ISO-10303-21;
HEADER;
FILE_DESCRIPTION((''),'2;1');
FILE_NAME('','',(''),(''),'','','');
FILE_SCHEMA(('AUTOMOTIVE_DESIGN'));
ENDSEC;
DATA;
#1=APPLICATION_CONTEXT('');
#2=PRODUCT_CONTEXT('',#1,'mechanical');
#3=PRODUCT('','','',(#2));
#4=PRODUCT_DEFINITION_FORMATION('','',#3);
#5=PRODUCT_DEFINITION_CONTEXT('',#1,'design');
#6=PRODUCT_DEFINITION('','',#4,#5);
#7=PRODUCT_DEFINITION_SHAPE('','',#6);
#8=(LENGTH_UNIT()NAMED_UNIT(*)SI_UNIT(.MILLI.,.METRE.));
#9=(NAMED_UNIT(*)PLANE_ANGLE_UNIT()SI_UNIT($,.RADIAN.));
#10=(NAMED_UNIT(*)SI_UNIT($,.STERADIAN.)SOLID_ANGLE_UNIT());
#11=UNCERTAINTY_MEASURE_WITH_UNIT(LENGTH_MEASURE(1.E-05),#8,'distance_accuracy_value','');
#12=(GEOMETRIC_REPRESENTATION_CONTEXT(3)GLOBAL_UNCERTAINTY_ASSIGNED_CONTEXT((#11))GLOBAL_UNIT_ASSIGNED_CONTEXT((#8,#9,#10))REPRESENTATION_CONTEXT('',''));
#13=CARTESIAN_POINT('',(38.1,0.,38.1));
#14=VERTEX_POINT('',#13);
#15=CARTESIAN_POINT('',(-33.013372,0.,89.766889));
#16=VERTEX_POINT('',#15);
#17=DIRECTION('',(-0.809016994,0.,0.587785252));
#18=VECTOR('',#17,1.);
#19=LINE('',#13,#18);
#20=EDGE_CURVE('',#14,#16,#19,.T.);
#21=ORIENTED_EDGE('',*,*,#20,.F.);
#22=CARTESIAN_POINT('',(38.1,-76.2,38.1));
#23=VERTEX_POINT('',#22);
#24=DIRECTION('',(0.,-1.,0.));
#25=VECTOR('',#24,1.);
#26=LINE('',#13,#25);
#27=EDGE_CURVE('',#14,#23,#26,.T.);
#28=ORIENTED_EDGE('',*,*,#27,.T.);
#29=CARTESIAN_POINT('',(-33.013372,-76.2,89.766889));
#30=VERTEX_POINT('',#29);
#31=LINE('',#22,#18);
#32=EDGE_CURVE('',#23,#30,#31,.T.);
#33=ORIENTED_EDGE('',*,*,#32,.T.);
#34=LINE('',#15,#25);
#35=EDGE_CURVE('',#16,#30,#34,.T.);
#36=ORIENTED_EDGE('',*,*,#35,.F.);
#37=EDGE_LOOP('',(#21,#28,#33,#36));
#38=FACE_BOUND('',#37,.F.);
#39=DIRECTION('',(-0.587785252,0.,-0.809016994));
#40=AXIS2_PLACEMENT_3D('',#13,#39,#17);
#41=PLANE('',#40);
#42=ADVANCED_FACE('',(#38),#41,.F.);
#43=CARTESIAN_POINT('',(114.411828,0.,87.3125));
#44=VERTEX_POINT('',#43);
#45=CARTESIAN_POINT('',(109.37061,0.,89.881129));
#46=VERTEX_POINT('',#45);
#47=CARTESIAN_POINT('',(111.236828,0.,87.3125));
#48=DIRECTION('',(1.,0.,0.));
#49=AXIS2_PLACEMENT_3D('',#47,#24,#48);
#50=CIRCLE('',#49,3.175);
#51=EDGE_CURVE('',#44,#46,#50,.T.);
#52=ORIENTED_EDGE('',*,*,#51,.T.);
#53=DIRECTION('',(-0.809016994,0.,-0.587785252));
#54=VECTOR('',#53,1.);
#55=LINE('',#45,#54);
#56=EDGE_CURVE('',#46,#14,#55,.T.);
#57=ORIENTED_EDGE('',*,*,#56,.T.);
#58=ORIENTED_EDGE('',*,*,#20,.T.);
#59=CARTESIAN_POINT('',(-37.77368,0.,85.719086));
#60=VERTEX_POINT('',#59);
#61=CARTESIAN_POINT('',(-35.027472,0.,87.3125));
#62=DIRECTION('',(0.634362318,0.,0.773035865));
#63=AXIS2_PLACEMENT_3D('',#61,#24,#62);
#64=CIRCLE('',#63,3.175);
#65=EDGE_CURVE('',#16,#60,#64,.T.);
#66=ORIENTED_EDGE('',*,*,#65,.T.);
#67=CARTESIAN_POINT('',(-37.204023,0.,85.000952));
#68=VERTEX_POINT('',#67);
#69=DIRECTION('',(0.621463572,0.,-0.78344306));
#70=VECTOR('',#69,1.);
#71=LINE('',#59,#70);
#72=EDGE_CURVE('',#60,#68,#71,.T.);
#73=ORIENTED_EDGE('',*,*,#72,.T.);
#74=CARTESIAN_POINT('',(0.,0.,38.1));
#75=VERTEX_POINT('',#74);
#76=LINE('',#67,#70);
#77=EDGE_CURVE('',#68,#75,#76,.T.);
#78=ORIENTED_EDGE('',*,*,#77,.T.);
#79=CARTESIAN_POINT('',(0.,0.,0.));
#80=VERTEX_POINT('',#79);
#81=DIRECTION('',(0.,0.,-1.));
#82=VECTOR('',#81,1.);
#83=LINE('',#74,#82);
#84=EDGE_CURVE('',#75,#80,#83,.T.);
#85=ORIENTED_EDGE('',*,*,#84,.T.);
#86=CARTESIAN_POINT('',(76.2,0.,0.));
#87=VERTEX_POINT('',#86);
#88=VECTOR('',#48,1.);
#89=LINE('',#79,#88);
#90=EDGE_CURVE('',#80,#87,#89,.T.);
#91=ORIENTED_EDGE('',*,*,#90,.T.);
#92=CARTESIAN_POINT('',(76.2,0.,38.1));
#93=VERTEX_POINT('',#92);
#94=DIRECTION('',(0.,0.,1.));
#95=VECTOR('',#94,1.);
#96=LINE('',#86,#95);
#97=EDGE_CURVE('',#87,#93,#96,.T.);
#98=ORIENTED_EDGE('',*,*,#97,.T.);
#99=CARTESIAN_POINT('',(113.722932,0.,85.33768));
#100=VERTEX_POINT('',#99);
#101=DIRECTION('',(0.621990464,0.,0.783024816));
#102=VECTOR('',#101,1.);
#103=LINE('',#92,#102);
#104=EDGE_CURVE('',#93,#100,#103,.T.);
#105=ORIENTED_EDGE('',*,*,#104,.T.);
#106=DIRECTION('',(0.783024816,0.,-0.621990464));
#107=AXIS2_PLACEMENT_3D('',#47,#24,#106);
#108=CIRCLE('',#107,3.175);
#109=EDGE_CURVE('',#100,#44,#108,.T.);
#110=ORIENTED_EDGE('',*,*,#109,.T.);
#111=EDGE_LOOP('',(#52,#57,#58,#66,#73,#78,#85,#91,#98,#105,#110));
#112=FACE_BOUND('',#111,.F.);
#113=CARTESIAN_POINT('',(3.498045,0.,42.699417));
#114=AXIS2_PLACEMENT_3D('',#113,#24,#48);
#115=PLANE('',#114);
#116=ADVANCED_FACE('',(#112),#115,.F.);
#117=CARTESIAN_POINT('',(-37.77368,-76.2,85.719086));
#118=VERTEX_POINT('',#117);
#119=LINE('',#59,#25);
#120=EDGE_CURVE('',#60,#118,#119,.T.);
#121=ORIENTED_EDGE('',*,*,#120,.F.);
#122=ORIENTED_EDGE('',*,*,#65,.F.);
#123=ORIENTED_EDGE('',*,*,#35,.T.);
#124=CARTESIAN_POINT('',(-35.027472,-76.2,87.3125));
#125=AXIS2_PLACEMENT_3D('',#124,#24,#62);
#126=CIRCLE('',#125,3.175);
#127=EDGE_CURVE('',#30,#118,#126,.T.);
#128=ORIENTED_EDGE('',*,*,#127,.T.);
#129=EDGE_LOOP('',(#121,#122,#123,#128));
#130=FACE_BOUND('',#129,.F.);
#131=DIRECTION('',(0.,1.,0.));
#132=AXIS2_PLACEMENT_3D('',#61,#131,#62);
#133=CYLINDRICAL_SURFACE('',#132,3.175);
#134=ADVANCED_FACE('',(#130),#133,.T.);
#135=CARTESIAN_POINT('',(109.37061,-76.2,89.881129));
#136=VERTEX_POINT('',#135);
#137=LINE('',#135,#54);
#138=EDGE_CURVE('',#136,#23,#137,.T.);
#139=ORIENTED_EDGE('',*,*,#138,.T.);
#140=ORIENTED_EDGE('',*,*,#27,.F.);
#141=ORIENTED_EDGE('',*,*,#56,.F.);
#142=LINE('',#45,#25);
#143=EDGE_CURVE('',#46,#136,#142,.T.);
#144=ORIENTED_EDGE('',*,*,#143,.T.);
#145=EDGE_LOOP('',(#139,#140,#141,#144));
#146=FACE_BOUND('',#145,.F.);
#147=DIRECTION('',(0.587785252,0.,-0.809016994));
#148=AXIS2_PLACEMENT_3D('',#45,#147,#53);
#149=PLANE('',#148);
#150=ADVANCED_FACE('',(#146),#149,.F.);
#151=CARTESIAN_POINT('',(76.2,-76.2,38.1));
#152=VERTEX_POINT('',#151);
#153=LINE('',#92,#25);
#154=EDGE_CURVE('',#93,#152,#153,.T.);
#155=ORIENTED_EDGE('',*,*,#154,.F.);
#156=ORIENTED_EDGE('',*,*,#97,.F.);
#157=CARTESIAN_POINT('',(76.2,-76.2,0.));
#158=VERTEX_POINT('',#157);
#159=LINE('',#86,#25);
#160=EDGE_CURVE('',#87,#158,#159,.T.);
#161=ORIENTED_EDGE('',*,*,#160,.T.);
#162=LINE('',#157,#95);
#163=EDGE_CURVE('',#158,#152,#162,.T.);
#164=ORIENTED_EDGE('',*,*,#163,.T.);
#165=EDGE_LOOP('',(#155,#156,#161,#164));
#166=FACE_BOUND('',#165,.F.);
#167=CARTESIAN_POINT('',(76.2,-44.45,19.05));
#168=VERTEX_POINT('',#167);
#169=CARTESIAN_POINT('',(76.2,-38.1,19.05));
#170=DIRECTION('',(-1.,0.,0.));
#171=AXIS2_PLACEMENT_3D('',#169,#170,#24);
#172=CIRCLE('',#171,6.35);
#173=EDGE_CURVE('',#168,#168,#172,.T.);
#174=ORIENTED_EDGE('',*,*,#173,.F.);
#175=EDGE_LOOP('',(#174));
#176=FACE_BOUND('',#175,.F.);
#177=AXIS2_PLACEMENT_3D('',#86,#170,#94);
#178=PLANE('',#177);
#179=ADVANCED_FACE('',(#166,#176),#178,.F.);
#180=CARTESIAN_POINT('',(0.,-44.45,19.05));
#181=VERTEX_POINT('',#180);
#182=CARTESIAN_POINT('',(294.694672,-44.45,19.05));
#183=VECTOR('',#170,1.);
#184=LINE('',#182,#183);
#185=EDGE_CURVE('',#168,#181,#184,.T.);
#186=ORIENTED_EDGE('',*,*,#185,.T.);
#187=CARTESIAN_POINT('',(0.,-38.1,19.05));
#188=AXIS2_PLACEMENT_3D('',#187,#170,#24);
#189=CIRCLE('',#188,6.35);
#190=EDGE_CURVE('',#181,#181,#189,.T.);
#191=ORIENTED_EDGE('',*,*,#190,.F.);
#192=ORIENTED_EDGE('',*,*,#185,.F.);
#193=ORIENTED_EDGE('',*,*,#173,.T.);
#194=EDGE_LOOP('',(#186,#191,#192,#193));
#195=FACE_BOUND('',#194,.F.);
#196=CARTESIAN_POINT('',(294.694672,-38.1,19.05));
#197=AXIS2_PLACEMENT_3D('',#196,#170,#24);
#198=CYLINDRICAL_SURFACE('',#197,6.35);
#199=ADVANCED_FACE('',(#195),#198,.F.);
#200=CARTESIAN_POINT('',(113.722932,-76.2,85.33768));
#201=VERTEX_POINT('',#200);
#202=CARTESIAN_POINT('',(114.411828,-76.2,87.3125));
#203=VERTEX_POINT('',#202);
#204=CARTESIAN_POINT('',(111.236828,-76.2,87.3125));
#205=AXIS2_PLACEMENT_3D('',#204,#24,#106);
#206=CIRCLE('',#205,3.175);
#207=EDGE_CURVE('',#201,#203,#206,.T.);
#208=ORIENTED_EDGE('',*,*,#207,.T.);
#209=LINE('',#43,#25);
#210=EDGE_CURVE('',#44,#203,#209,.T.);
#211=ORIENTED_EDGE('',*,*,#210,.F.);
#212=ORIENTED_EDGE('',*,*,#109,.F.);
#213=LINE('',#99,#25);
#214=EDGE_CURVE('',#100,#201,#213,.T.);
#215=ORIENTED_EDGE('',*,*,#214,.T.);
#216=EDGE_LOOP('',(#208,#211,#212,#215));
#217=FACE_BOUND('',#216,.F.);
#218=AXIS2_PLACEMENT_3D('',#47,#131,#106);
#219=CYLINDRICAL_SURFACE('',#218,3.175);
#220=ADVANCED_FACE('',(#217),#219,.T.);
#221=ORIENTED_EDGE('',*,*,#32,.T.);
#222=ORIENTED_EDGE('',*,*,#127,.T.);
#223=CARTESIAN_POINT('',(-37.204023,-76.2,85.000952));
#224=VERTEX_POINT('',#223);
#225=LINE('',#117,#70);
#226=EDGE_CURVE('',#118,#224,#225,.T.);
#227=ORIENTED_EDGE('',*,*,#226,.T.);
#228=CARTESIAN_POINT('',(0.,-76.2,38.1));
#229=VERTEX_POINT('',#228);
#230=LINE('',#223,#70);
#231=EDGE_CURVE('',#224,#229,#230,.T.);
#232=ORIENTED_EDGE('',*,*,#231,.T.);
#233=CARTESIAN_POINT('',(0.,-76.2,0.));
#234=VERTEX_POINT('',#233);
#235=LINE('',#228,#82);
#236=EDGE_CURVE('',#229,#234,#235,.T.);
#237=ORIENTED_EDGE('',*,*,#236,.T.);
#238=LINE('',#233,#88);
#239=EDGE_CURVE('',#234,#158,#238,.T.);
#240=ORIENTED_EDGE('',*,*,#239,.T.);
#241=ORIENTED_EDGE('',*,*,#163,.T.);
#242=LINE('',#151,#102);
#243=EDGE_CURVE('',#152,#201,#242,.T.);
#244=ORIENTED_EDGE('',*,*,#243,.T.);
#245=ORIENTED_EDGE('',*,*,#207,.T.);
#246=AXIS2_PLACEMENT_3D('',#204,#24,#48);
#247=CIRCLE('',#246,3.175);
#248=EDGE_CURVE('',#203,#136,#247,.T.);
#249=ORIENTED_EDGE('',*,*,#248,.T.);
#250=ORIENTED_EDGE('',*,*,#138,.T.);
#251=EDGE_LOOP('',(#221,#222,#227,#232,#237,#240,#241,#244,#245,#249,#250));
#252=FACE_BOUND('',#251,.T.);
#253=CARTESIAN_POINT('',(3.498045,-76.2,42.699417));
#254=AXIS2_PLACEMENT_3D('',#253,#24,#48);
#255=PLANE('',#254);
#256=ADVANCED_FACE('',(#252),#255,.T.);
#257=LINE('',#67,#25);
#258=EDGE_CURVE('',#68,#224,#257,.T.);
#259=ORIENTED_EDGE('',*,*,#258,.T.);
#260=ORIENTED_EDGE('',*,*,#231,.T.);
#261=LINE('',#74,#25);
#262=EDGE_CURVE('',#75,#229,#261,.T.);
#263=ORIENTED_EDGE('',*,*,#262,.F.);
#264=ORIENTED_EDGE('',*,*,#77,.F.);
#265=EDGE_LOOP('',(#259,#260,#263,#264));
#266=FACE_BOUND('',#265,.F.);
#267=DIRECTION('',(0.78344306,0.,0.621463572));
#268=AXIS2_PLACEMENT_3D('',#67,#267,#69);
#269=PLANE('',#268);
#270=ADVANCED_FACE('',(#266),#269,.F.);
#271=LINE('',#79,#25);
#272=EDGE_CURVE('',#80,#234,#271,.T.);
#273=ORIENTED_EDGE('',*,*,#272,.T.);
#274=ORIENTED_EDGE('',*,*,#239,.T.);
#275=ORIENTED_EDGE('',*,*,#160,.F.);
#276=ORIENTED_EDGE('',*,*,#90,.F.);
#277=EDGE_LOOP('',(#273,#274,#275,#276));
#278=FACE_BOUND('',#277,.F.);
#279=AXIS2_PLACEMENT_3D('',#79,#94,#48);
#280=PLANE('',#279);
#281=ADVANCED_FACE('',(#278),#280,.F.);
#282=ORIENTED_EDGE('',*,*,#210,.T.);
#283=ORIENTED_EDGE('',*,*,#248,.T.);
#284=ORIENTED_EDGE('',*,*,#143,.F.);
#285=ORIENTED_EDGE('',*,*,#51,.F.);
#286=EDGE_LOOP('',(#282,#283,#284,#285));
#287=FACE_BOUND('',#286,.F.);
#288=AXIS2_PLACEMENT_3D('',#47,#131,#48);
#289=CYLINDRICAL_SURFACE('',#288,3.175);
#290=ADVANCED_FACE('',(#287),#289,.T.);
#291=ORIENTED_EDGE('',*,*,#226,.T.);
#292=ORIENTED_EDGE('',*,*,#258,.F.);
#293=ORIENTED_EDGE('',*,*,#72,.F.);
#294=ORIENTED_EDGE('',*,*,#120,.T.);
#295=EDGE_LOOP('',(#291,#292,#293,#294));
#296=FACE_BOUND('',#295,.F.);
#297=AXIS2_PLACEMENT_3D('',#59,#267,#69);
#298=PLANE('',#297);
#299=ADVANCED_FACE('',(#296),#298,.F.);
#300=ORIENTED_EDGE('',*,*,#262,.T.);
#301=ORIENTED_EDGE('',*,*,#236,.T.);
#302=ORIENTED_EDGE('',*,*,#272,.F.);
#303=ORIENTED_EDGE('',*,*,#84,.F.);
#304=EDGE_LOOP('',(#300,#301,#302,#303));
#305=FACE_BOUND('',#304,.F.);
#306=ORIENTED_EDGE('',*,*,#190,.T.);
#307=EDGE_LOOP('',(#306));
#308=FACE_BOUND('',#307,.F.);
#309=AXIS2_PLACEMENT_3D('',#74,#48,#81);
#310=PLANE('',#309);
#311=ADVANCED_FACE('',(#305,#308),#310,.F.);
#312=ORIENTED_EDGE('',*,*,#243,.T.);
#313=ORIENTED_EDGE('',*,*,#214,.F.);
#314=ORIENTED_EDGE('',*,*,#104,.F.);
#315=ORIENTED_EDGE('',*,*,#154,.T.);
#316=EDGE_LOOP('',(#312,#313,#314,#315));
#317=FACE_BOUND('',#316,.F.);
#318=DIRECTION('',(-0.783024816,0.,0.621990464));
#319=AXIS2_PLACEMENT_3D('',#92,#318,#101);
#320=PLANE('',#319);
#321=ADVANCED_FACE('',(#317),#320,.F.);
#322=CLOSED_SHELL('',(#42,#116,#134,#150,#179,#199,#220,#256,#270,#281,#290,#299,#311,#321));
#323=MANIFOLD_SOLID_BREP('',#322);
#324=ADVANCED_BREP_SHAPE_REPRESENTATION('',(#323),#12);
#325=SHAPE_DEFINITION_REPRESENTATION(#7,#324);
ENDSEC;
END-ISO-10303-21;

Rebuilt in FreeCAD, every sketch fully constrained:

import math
import FreeCAD as App
import Part
import Sketcher
Q = App.Units.Quantity

doc = App.newDocument("Part")
body = doc.addObject("PartDesign::Body", "Body")

# Sketch on XZ plane
sketch1 = body.newObject("Sketcher::SketchObject", "Sketch")
sketch1.AttachmentSupport = (doc.getObject("XZ_Plane"), [""])
sketch1.MapMode = "FlatFace"
sketch1.addGeometry([
    Part.LineSegment(App.Vector(0, 38.1, 0), App.Vector(0, 0, 0)),  # 0
    Part.LineSegment(App.Vector(0, 0, 0), App.Vector(76.2, 0, 0)),  # 1
    Part.LineSegment(App.Vector(76.2, 0, 0), App.Vector(76.2, 38.1, 0)),  # 2
    Part.LineSegment(App.Vector(76.2, 38.1, 0), App.Vector(113.7, 85.3, 0)),  # 3
    Part.ArcOfCircle(Part.Circle(App.Vector(111.2, 87.3, 0), App.Vector(0, 0, 1), 3.2), math.radians(-38), math.radians(0)),  # 4
    Part.ArcOfCircle(Part.Circle(App.Vector(111.2, 87.3, 0), App.Vector(0, 0, 1), 3.2), math.radians(0), math.radians(126)),  # 5
    Part.LineSegment(App.Vector(109.4, 89.9, 0), App.Vector(38.1, 38.1, 0)),  # 6
    Part.LineSegment(App.Vector(38.1, 38.1, 0), App.Vector(-33, 89.8, 0)),  # 7
    Part.ArcOfCircle(Part.Circle(App.Vector(-35, 87.3, 0), App.Vector(0, 0, 1), 3.2), math.radians(51), math.radians(210)),  # 8
    Part.LineSegment(App.Vector(-37.8, 85.7, 0), App.Vector(-37.2, 85, 0)),  # 9
    Part.LineSegment(App.Vector(-37.2, 85, 0), App.Vector(0, 38.1, 0)),  # 10
], False)
sketch1.addConstraint([
    Sketcher.Constraint("Coincident", 0, 2, 1, 1),
    Sketcher.Constraint("Coincident", 1, 2, 2, 1),
    Sketcher.Constraint("Coincident", 2, 2, 3, 1),
    Sketcher.Constraint("Tangent", 3, 2, 4, 1),
    Sketcher.Constraint("Tangent", 4, 2, 5, 1),
    Sketcher.Constraint("Tangent", 5, 2, 6, 1),
    Sketcher.Constraint("Coincident", 6, 2, 7, 1),
    Sketcher.Constraint("Coincident", 7, 2, 8, 1),
    Sketcher.Constraint("Coincident", 8, 2, 9, 1),
    Sketcher.Constraint("Coincident", 9, 2, 10, 1),
    Sketcher.Constraint("Coincident", 10, 2, 0, 1),
    Sketcher.Constraint("Vertical", 0),
    Sketcher.Constraint("Horizontal", 1),
    Sketcher.Constraint("Vertical", 2),
    Sketcher.Constraint("Coincident", 0, 2, -1, 1),
    Sketcher.Constraint("Equal", 4, 5),
    Sketcher.Constraint("Equal", 5, 8),
    Sketcher.Constraint("Parallel", 9, 10),
    Sketcher.Constraint("Horizontal", 5, 3, 8, 3),
    Sketcher.Constraint("Horizontal", 8, 3, 4, 2),
    Sketcher.Constraint("Horizontal", 2, 2, 6, 2),
    Sketcher.Constraint("Horizontal", 6, 2, 10, 2),
    Sketcher.Constraint("DistanceX", 1, 1, 1, 2, Q("3 in")),
    Sketcher.Constraint("DistanceY", 0, 2, 0, 1, Q("1.5 in")),
    Sketcher.Constraint("Angle", 6, Q("-144 deg")),
    Sketcher.Constraint("Angle", 7, Q("144 deg")),
    Sketcher.Constraint("Radius", 4, Q("0.125 in")),
    Sketcher.Constraint("DistanceX", -1, 1, 6, 2, Q("1.5 in")),
    Sketcher.Constraint("DistanceY", -1, 1, 4, 3, Q("3.4375 in")),
    Sketcher.Constraint("DistanceX", 8, 3, 5, 3, 146.2643),
    Sketcher.Constraint("Distance", 9, 0.916638),
    Sketcher.Constraint("Distance", 10, 59.86517),
])
pad1 = body.newObject("PartDesign::Pad", "Pad")
pad1.Profile = sketch1
pad1.Length = Q("3 in")

# Sketch on YZ plane
sketch2 = body.newObject("Sketcher::SketchObject", "Sketch001")
sketch2.AttachmentSupport = (doc.getObject("YZ_Plane"), [""])
sketch2.MapMode = "FlatFace"
sketch2.AttachmentOffset = App.Placement(App.Vector(0, 0, 4 * 25.4), App.Rotation())
sketch2.addGeometry(Part.Circle(App.Vector(-38, 19, 0), App.Vector(0, 0, 1), 6), False)
sketch2.addConstraint([
    Sketcher.Constraint("Diameter", 0, Q("0.5 in")),
    Sketcher.Constraint("DistanceX", 0, 3, -1, 1, Q("1.5 in")),
    Sketcher.Constraint("DistanceY", -1, 1, 0, 3, Q("0.75 in")),
])
doc.recompute()
hole = body.newObject("PartDesign::Hole", "Hole")
hole.Profile = sketch2
hole.ThreadType = "None"
hole.Diameter = Q("0.5 in")
hole.DepthType = "ThroughAll"

doc.recompute()
